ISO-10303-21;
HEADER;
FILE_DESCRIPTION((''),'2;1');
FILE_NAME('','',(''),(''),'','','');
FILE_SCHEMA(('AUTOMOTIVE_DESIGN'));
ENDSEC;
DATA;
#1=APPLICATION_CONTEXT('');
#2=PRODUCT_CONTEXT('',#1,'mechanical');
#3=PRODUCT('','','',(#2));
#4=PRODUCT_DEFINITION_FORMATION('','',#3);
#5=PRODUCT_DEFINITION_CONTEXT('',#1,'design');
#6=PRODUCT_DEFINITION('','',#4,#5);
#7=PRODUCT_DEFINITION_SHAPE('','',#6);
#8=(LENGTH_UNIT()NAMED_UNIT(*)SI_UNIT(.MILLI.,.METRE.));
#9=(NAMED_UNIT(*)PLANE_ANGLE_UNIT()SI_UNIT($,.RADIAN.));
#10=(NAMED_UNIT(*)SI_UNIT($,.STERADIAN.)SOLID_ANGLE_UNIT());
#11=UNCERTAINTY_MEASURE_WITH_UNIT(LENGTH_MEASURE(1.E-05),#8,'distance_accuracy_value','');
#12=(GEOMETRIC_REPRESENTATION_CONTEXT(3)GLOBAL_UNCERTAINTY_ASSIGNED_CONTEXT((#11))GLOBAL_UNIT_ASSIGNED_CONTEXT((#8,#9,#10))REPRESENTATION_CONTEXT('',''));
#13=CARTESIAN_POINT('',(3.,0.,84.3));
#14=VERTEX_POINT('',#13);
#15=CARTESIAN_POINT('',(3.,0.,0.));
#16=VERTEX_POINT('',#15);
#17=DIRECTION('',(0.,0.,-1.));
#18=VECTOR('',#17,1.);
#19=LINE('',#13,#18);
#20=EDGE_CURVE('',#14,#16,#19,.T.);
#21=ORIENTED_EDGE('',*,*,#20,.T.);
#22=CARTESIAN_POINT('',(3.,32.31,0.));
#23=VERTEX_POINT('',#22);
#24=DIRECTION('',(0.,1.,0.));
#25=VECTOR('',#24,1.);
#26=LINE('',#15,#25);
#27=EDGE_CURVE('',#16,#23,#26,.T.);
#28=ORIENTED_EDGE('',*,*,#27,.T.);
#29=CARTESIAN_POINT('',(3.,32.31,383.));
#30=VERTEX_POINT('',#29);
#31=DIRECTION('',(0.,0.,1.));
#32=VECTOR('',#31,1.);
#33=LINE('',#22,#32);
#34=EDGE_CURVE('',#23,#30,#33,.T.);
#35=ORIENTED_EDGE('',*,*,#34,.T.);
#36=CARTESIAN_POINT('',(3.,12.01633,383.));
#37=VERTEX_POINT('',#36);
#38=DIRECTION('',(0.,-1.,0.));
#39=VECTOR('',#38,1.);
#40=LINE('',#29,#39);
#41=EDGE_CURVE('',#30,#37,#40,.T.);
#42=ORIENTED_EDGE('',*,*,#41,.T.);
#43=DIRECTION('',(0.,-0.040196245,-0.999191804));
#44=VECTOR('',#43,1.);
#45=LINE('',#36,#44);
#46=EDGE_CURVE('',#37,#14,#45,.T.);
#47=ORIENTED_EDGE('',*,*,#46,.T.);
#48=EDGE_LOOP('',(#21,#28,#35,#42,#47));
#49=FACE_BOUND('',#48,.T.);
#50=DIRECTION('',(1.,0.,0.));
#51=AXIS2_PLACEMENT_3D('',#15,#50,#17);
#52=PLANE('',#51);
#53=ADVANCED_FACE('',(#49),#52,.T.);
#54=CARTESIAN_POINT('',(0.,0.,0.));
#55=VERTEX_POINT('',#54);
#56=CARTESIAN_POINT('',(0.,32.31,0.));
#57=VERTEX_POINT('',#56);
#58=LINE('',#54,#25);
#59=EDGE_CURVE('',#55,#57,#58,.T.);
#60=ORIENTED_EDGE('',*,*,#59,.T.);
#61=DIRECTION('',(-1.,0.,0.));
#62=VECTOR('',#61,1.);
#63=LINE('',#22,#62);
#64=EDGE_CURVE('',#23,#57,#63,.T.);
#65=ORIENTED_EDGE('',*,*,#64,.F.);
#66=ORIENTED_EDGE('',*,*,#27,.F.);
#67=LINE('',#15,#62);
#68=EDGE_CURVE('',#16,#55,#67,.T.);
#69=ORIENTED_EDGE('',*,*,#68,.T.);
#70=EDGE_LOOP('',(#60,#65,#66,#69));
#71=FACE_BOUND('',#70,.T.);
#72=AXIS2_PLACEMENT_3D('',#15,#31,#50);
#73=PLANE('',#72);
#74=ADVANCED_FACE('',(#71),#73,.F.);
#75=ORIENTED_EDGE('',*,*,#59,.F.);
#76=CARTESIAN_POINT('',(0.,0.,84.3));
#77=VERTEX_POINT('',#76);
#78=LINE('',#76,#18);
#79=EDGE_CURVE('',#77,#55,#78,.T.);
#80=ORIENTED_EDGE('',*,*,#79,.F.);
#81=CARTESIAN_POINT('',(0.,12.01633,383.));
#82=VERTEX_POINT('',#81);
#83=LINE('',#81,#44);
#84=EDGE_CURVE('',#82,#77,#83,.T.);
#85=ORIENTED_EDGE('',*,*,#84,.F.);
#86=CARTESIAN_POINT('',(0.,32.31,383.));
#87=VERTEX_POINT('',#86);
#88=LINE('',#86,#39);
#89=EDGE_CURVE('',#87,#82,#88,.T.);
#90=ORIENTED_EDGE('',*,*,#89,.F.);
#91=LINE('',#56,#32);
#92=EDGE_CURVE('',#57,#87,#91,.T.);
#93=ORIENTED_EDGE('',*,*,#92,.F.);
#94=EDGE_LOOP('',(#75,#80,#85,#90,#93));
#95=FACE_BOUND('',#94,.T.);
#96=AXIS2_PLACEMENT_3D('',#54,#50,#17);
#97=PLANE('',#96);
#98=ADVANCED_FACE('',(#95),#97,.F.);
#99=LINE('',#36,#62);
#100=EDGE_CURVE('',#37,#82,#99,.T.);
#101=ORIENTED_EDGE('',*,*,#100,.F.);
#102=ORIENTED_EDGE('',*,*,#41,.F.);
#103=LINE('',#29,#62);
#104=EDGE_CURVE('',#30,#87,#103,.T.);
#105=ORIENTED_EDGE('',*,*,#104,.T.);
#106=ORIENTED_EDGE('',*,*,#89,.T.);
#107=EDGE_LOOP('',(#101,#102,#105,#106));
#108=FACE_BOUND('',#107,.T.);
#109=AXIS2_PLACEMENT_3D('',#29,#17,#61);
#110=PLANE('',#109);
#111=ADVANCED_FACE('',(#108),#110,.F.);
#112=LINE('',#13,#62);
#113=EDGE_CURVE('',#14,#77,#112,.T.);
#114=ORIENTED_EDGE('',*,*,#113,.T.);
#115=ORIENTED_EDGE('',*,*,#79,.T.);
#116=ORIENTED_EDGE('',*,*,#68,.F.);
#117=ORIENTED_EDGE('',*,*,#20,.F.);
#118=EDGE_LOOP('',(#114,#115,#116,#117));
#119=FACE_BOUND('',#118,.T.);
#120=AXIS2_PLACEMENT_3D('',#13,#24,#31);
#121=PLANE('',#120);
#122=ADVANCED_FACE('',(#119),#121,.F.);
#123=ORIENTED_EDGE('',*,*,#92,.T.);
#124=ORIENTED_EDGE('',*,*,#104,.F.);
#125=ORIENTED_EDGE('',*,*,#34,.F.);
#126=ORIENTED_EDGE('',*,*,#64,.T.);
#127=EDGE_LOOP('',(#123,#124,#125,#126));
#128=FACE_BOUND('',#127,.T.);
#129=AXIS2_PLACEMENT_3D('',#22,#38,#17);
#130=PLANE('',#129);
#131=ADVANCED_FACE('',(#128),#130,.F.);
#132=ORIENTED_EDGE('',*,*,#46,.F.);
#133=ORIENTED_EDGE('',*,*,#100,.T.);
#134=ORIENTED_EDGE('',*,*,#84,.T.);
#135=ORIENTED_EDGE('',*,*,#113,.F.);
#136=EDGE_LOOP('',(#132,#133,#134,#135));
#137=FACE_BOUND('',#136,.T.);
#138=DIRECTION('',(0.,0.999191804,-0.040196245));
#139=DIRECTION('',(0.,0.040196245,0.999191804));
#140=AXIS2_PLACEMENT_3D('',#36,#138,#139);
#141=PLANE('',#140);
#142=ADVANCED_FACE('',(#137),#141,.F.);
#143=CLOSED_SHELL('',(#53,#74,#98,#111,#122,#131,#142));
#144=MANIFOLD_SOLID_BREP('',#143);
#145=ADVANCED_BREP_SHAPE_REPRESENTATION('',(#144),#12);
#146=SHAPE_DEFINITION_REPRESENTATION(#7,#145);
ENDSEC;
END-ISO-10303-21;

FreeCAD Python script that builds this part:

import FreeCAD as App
import Part
import Sketcher
from FreeCAD import Vector
Q = App.Units.Quantity


def add_polygon(sketch, points):
    """Adds a closed chain of lines whose ends are joined by coincident constraints."""
    first, n = sketch.GeometryCount, len(points)
    for a, b in zip(points, points[1:] + points[:1]):
        sketch.addGeometry(Part.LineSegment(App.Vector(*a, 0), App.Vector(*b, 0)), False)
    for i in range(n):
        sketch.addConstraint(Sketcher.Constraint("Coincident", first + i, 2, first + (i + 1) % n, 1))

doc = App.newDocument("Part")
body = doc.addObject("PartDesign::Body", "Body")

sketch1 = doc.addObject("Sketcher::SketchObject", "Sketch")
body.addObject(sketch1)
sketch1.AttachmentSupport = (doc.YZ_Plane, [""])
sketch1.MapMode = "FlatFace"
add_polygon(sketch1, [(12, 383), (0, 84), (0, 0), (32, 0), (32, 383)])
sketch1.addConstraint(Sketcher.Constraint("Vertical", 1))
sketch1.addConstraint(Sketcher.Constraint("Horizontal", 2))
sketch1.addConstraint(Sketcher.Constraint("Vertical", 3))
sketch1.addConstraint(Sketcher.Constraint("Horizontal", 4))
sketch1.addConstraint(Sketcher.Constraint("Coincident", 1, 2, -1, 1))
sketch1.addConstraint(Sketcher.Constraint("DistanceY", 3, 1, 3, 2, Q("383 mm")))
sketch1.addConstraint(Sketcher.Constraint("DistanceY", 1, 2, 1, 1, Q("84.3 mm")))
sketch1.addConstraint(Sketcher.Constraint("DistanceX", 2, 1, 2, 2, Q("32.31 mm")))
sketch1.addConstraint(Sketcher.Constraint("DistanceX", 4, 2, 4, 1, Q("20.29367 mm")))
pad1 = doc.addObject("PartDesign::Pad", "Pad")
body.addObject(pad1)
pad1.Profile = sketch1
pad1.Length = 3

doc.recompute()
